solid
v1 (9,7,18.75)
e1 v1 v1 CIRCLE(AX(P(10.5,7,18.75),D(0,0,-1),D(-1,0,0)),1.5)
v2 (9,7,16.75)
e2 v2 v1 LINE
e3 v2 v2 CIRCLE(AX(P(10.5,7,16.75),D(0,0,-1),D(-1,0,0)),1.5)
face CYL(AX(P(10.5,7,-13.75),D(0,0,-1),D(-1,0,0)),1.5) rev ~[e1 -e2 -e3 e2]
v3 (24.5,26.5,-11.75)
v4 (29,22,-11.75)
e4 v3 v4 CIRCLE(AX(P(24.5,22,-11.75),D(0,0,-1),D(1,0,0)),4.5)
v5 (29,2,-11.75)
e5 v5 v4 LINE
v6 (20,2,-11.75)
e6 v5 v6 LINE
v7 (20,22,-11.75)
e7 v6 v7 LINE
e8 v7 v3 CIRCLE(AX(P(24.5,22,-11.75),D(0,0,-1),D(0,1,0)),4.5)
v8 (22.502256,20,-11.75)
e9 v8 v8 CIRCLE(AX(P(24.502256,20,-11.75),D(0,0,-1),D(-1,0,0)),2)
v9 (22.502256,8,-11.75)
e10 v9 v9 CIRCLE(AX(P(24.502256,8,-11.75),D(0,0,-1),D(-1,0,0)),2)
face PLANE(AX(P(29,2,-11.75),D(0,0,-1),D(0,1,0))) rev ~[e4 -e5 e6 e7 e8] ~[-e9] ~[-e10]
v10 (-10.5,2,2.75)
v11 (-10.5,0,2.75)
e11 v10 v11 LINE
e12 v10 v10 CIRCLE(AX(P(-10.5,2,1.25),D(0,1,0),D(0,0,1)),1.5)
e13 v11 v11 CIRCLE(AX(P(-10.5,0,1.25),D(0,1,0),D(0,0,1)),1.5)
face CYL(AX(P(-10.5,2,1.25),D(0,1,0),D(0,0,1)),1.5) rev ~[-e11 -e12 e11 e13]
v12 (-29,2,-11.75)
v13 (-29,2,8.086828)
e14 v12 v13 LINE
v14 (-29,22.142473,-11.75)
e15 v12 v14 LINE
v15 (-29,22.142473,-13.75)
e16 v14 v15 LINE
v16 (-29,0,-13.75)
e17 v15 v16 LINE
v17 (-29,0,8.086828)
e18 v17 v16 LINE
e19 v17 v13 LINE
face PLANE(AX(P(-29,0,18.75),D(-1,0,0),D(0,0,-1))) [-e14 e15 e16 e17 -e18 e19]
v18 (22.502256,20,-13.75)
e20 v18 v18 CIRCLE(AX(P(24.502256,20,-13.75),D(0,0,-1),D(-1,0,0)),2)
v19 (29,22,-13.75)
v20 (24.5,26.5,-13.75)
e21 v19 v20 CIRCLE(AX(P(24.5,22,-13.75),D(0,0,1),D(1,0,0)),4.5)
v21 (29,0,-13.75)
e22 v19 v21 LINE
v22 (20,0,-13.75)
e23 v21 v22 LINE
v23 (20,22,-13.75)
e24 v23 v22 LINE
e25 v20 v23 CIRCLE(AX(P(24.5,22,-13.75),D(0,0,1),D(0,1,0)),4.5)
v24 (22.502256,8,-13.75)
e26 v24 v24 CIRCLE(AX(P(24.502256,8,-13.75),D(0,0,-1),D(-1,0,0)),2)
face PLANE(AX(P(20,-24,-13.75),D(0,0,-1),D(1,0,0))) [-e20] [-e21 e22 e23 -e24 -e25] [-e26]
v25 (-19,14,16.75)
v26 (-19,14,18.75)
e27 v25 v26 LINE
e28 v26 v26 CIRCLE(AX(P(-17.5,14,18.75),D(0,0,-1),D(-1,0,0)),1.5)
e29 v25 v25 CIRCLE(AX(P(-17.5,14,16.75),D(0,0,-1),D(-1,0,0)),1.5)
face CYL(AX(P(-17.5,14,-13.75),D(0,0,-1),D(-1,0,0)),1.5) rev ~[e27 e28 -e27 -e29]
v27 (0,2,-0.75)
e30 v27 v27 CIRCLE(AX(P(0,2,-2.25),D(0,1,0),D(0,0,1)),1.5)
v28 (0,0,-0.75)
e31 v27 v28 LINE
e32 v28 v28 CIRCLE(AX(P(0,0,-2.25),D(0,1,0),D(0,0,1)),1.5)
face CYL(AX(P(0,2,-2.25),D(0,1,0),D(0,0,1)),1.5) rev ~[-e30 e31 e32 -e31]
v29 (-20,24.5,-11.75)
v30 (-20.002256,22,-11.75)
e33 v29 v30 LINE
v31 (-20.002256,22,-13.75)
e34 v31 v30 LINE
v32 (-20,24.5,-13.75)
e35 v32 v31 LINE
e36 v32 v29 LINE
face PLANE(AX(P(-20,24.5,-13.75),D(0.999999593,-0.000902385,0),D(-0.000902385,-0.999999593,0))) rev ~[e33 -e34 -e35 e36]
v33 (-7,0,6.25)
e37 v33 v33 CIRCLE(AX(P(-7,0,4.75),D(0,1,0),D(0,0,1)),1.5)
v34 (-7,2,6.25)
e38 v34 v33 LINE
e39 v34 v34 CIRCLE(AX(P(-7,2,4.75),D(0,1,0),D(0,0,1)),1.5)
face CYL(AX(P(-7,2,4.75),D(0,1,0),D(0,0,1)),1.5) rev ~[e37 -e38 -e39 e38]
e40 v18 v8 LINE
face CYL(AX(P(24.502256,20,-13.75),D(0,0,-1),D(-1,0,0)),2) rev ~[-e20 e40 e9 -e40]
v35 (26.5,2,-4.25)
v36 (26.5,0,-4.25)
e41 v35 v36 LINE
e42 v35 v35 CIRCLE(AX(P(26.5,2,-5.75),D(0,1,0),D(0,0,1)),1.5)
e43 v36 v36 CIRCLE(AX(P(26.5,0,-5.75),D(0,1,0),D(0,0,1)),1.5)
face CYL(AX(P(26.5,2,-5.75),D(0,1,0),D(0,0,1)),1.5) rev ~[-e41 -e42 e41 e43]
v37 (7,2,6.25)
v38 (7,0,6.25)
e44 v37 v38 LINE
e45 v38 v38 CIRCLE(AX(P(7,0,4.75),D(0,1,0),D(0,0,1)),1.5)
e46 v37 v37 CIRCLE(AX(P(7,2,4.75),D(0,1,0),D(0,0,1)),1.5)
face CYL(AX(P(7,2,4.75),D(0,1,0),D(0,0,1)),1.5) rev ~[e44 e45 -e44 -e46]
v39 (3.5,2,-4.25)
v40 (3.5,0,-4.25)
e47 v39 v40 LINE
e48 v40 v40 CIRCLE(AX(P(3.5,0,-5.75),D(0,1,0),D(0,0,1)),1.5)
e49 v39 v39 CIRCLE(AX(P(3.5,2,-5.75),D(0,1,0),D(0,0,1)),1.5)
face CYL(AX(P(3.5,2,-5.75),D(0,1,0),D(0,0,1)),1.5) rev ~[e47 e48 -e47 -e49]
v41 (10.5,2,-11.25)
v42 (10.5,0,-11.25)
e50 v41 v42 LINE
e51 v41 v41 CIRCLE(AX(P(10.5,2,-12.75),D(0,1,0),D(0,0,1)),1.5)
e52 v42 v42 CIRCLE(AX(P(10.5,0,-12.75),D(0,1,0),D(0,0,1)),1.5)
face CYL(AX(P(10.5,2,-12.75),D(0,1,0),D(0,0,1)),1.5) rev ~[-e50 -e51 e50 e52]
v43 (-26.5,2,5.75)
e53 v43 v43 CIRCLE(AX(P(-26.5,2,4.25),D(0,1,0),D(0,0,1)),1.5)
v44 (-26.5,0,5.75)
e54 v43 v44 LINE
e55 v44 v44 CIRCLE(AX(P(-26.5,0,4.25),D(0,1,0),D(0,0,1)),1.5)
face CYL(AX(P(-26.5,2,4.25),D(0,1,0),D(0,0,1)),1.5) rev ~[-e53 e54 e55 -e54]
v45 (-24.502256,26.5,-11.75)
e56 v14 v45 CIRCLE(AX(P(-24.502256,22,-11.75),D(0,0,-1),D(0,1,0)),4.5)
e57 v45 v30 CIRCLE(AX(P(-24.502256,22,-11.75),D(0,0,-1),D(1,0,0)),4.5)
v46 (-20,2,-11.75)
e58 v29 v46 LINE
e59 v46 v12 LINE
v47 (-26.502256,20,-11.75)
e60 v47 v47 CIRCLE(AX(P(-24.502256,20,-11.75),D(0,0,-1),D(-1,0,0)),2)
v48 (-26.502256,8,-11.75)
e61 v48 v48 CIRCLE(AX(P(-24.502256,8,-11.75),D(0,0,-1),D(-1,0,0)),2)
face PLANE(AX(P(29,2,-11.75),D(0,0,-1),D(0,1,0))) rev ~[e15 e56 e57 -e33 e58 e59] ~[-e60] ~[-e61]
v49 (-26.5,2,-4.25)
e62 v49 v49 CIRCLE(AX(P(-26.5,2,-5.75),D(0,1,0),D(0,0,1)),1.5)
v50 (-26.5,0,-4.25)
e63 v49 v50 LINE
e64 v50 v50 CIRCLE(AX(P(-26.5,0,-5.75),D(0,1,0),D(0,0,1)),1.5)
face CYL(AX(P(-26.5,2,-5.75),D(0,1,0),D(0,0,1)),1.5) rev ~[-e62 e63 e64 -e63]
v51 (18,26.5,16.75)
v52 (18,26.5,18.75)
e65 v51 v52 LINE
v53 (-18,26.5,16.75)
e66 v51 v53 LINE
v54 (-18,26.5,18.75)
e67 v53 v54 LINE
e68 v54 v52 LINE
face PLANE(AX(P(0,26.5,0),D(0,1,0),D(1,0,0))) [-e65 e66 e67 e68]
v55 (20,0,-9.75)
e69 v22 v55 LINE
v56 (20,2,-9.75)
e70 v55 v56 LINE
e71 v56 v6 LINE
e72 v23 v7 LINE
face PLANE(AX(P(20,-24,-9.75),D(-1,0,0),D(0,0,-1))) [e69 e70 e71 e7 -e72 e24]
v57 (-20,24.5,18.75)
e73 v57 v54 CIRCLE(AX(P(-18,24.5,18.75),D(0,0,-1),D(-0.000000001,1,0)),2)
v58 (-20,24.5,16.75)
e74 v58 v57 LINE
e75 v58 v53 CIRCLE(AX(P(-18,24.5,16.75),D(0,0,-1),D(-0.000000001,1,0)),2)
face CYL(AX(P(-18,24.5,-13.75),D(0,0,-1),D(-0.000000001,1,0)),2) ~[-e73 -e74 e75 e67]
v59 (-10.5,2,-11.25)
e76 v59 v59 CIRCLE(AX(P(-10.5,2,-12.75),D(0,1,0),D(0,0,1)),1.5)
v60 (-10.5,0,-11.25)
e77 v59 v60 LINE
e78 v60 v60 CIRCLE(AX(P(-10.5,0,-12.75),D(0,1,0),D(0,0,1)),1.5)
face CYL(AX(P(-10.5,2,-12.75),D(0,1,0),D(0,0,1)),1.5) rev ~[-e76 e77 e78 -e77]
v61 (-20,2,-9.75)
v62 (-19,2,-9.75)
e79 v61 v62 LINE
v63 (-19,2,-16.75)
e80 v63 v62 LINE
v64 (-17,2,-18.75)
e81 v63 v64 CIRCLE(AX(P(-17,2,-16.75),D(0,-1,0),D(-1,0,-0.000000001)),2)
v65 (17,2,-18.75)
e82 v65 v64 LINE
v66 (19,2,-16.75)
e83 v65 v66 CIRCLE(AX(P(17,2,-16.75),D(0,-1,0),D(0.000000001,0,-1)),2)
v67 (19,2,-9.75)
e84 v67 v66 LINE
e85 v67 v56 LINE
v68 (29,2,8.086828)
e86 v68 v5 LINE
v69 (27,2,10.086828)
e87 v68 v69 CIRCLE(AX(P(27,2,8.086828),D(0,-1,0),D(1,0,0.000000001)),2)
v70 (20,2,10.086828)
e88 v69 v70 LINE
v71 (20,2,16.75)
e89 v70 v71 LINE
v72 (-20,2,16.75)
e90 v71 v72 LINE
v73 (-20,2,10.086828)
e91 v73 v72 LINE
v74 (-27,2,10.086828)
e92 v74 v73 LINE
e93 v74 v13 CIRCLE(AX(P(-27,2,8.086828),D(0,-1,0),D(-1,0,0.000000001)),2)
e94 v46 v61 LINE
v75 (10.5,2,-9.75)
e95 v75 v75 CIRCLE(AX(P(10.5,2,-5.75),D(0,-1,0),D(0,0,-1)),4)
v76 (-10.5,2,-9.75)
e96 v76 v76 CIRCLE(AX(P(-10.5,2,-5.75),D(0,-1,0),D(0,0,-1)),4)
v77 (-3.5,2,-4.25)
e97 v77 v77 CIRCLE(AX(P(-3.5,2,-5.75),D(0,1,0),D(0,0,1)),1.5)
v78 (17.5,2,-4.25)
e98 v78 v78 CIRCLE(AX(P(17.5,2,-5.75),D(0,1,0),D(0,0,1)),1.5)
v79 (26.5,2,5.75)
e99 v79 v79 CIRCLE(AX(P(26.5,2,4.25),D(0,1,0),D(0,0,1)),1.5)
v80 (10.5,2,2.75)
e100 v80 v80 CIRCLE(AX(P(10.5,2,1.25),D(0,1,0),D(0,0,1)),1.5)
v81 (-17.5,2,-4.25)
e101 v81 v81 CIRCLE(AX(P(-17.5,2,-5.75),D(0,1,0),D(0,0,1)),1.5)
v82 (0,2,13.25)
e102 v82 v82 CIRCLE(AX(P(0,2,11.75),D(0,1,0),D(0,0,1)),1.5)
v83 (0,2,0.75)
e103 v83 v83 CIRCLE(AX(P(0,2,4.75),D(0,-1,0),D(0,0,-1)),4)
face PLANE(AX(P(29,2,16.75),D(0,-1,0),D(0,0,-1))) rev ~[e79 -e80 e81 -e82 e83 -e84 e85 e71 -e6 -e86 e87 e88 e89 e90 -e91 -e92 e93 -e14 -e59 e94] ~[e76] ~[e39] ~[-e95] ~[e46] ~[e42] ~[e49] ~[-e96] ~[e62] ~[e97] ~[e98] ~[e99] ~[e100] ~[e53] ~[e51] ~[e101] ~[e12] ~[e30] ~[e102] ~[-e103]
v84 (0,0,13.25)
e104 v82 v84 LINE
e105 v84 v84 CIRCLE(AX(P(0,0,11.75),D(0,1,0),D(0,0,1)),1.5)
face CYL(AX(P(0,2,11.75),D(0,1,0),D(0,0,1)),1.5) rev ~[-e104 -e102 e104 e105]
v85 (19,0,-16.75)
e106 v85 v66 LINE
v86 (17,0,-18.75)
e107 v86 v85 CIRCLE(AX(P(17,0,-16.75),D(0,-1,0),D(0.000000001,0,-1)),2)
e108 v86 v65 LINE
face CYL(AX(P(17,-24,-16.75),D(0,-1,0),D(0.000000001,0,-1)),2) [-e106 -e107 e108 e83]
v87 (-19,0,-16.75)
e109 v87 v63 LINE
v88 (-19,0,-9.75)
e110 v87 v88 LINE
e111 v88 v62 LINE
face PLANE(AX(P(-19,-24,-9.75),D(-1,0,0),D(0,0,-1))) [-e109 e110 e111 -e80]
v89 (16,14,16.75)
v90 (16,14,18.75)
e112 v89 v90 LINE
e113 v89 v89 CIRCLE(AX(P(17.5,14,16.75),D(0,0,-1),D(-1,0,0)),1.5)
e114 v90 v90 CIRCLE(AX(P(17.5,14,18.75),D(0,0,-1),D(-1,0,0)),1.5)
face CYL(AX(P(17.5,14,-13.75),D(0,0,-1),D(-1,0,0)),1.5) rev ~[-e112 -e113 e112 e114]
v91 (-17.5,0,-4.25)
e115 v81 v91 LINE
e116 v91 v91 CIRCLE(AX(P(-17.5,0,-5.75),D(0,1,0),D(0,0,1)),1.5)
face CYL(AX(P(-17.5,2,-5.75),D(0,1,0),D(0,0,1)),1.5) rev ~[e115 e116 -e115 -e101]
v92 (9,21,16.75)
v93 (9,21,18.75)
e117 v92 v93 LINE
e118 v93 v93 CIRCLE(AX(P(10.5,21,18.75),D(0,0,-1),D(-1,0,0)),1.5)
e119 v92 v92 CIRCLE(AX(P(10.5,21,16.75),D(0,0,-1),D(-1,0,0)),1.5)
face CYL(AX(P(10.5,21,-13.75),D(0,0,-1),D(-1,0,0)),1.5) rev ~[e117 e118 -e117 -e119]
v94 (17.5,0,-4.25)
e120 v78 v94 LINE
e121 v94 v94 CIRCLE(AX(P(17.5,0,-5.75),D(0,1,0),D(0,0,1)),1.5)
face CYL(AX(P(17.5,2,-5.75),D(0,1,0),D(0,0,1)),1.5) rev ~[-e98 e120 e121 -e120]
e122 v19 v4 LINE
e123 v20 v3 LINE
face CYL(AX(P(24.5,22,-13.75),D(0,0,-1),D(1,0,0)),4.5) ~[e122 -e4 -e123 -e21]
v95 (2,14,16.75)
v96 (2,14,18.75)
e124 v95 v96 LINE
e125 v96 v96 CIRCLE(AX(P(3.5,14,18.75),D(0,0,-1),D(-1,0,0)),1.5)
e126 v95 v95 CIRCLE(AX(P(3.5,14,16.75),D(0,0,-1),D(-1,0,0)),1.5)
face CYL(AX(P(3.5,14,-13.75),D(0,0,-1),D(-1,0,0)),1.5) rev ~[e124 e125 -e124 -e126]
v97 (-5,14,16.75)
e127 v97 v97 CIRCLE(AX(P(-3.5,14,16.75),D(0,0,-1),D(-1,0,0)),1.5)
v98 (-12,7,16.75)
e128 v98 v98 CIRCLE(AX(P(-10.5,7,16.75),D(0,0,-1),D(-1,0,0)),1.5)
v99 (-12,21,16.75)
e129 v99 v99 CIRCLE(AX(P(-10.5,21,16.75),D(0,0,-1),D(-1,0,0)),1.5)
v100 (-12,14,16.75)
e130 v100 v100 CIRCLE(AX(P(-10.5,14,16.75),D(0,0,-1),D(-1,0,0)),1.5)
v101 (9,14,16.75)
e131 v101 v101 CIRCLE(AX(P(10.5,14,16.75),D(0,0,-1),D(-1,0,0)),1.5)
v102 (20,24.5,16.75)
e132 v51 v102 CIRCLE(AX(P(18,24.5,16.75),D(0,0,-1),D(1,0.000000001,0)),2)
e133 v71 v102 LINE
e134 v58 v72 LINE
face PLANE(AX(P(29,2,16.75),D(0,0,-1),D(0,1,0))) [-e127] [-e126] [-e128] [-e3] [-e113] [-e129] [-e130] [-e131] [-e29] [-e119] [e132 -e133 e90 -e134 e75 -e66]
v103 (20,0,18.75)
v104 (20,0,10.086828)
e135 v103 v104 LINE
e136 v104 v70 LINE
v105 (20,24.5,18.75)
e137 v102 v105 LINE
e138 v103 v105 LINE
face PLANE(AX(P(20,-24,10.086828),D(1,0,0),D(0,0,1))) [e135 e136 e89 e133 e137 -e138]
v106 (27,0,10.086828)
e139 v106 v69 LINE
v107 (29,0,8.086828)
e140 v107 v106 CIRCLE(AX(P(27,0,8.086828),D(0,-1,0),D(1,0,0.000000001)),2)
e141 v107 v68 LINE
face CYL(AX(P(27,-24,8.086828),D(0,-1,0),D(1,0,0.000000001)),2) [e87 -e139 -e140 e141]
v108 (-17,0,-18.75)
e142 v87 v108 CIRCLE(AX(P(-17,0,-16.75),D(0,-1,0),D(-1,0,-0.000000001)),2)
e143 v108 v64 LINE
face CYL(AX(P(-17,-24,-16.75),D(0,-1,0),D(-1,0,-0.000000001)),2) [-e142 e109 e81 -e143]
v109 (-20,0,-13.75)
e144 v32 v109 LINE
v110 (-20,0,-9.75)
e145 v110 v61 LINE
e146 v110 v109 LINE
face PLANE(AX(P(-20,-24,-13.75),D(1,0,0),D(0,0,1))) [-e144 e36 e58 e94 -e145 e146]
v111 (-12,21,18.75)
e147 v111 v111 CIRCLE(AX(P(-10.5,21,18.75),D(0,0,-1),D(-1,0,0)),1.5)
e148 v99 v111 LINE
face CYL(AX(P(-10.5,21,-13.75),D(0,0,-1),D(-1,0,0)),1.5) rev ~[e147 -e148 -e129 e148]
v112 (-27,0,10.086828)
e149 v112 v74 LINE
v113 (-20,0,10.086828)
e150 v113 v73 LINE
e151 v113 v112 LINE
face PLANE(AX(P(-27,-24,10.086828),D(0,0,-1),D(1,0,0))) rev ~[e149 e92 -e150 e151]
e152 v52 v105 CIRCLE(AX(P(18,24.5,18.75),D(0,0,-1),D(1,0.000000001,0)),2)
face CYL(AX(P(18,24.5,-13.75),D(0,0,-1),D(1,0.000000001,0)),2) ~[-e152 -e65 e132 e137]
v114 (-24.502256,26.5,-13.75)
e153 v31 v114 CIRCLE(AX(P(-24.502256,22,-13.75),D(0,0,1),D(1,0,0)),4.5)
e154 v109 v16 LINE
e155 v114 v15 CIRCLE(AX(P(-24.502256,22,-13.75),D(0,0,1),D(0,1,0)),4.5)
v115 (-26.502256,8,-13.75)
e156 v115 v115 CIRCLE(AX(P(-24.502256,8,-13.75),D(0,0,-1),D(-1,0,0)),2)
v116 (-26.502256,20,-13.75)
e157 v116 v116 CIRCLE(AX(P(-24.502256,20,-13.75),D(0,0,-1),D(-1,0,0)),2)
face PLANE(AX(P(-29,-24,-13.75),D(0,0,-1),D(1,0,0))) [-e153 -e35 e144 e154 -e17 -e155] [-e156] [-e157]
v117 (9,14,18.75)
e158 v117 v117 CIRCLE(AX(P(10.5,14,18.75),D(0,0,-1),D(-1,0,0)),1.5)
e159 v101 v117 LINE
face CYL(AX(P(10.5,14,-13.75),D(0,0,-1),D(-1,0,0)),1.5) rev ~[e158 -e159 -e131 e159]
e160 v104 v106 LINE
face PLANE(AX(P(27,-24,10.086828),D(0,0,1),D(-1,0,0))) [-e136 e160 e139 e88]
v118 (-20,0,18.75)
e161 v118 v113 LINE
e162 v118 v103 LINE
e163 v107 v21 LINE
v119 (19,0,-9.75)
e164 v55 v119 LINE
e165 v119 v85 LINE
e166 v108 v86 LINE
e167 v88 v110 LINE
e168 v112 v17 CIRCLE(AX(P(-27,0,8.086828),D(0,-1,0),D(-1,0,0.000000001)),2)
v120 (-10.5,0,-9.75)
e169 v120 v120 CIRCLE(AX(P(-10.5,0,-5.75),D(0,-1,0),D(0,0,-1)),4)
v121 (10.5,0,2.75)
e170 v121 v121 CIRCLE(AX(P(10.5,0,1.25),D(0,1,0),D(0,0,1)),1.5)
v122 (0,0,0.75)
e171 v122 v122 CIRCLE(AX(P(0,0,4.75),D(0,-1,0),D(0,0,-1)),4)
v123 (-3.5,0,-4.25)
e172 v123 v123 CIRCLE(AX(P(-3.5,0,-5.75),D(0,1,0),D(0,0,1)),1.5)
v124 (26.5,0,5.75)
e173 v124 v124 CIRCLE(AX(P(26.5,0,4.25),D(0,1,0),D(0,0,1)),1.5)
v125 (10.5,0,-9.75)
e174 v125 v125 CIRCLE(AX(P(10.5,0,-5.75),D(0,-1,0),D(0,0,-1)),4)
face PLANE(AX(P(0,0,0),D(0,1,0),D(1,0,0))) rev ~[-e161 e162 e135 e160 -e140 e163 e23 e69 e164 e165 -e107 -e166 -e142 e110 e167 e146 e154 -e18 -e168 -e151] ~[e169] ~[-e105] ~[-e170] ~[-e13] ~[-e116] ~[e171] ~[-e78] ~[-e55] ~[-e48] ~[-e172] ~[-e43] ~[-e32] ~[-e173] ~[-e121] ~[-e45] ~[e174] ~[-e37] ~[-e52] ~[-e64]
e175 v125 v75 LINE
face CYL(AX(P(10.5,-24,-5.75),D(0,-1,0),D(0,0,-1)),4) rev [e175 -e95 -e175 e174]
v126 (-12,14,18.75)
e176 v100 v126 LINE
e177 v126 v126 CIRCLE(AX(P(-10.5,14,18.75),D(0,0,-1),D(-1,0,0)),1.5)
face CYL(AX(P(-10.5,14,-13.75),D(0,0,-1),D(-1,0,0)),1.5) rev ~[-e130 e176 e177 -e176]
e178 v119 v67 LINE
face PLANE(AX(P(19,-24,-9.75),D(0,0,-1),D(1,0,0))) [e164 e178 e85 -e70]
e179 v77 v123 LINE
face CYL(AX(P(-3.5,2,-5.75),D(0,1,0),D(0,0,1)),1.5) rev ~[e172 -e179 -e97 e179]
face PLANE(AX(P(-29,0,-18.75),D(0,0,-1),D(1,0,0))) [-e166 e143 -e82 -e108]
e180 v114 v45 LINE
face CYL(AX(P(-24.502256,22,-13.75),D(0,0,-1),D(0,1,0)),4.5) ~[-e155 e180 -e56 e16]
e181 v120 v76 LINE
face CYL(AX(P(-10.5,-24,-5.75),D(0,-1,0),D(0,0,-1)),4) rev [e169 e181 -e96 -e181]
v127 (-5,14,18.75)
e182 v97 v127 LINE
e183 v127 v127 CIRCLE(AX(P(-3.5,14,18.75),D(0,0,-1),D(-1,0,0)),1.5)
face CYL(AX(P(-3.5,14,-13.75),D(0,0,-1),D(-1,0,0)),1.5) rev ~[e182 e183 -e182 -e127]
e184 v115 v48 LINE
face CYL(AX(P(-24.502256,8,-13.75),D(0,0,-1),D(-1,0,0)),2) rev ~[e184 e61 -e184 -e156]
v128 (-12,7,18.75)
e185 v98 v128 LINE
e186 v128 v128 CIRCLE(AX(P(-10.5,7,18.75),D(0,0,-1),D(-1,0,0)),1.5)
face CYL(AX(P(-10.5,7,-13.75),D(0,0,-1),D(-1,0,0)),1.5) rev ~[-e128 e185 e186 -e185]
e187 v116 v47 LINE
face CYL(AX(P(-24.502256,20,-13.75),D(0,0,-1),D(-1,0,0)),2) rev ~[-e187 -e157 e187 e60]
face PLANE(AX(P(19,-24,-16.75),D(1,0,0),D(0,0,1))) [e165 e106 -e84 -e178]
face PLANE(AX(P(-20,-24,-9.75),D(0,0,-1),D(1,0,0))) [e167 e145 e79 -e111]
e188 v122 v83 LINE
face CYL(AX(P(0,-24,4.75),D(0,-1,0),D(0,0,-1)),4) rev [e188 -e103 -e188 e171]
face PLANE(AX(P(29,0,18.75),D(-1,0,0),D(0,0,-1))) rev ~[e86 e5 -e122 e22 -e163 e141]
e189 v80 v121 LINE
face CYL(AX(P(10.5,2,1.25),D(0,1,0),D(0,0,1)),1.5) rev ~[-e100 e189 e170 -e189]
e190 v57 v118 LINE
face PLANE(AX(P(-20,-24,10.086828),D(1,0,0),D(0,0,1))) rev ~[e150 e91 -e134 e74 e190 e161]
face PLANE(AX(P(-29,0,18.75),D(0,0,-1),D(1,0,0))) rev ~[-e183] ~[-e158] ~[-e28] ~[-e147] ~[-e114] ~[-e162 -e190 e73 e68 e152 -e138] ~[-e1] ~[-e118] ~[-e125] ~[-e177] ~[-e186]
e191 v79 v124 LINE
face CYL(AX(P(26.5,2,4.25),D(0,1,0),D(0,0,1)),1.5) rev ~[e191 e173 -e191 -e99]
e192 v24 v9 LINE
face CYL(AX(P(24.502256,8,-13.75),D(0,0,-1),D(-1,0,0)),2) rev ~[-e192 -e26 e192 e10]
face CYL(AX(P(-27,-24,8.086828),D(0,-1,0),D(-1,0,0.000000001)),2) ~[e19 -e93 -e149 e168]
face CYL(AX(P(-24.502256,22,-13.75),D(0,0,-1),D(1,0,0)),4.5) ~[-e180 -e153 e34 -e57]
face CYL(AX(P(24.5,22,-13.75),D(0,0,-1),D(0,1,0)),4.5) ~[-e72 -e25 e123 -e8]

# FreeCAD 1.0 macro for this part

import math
import FreeCAD as App
import Part
import Sketcher

V = App.Vector

doc = App.newDocument("Part")
params = doc.addObject("Spreadsheet::Sheet", "Params")
for row, (alias, value) in enumerate([
    ("sketch1_width", "58 mm"),
    ("sketch1_height", "37.5 mm"),
    ("pad1_length", "26.5 mm"),
    ("sketch2_width", "24.5 mm"),
    ("sketch2_height", "28.5 mm"),
    ("sketch3_diameter", "8 mm"),
    ("sketch3_radius", "2 mm"),
    ("sketch3_width", "9 mm"),
    ("sketch3_width2", "1 mm"),
    ("sketch3_height", "5 mm"),
    ("sketch4_width", "38 mm"),
    ("sketch4_height", "24.5 mm"),
    ("pocket3_length", "26 mm"),
    ("sketch5_diameter", "3 mm"),
    ("sketch6_diameter", "4 mm"),
    ("sketch6_diameter2", "3 mm"),
    ("sketch6_radius", "4.5 mm"),
], start=1):
    params.set(f"A{row}", alias)
    params.set(f"B{row}", "=" + value)
    params.setAlias(f"B{row}", alias)

body = doc.addObject("PartDesign::Body", "Body")

sketch1 = body.newObject("Sketcher::SketchObject", "Sketch")
sketch1.AttachmentSupport = (doc.getObject("XZ_Plane"), [""])
sketch1.MapMode = "FlatFace"
sketch1.addGeometry([
    Part.LineSegment(V(-29, -19, 0), V(-29, 19, 0)),
    Part.LineSegment(V(-29, 19, 0), V(29, 19, 0)),
    Part.LineSegment(V(29, 19, 0), V(29, -19, 0)),
    Part.LineSegment(V(29, -19, 0), V(-29, -19, 0)),
], False)
sketch1.addConstraint([
    Sketcher.Constraint("Coincident", 0, 2, 1, 1),
    Sketcher.Constraint("Coincident", 1, 2, 2, 1),
    Sketcher.Constraint("Coincident", 2, 2, 3, 1),
    Sketcher.Constraint("Coincident", 3, 2, 0, 1),
    Sketcher.Constraint("Vertical", 0),
    Sketcher.Constraint("Horizontal", 1),
    Sketcher.Constraint("Vertical", 2),
    Sketcher.Constraint("Horizontal", 3),
    Sketcher.Constraint("Symmetric", 0, 2, 2, 2, -1, 1),
    Sketcher.Constraint("DistanceX", 1, 1, 1, 2, 58.0),
    Sketcher.Constraint("DistanceY", 0, 1, 0, 2, 37.5),
])
sketch1.setExpression("Constraints[9]", "Params.sketch1_width")
sketch1.setExpression("Constraints[10]", "Params.sketch1_height")
pad1 = body.newObject("PartDesign::Pad", "Pad")
pad1.Profile = sketch1
pad1.setExpression("Length", "Params.pad1_length")
pad1.Reversed = True

sketch2 = body.newObject("Sketcher::SketchObject", "Sketch001")
sketch2.AttachmentSupport = (doc.getObject("YZ_Plane"), [""])
sketch2.MapMode = "FlatFace"
sketch2.AttachmentOffset = App.Placement(V(0, 0, 29), App.Rotation())
sketch2.addGeometry([
    Part.LineSegment(V(26, -14, 0), V(2, -14, 0)),
    Part.LineSegment(V(2, -14, 0), V(2, -22, 0)),
    Part.LineSegment(V(2, -22, 0), V(26, -22, 0)),
    Part.LineSegment(V(26, -22, 0), V(26, -14, 0)),
    Part.LineSegment(V(27, 17, 0), V(2, 17, 0)),
    Part.LineSegment(V(2, 17, 0), V(2, -12, 0)),
    Part.LineSegment(V(2, -12, 0), V(27, -12, 0)),
    Part.LineSegment(V(27, -12, 0), V(27, 17, 0)),
], False)
sketch2.addConstraint([
    Sketcher.Constraint("Coincident", 0, 2, 1, 1),
    Sketcher.Constraint("Coincident", 1, 2, 2, 1),
    Sketcher.Constraint("Coincident", 2, 2, 3, 1),
    Sketcher.Constraint("Coincident", 3, 2, 0, 1),
    Sketcher.Constraint("Coincident", 4, 2, 5, 1),
    Sketcher.Constraint("Coincident", 5, 2, 6, 1),
    Sketcher.Constraint("Coincident", 6, 2, 7, 1),
    Sketcher.Constraint("Coincident", 7, 2, 4, 1),
    Sketcher.Constraint("Horizontal", 0),
    Sketcher.Constraint("Vertical", 1),
    Sketcher.Constraint("Horizontal", 2),
    Sketcher.Constraint("Vertical", 3),
    Sketcher.Constraint("Horizontal", 4),
    Sketcher.Constraint("Vertical", 5),
    Sketcher.Constraint("Horizontal", 6),
    Sketcher.Constraint("Vertical", 7),
    Sketcher.Constraint("Vertical", 1, 2, 4, 2),
    Sketcher.Constraint("DistanceX", 0, 2, 0, 1, 24.5),
    Sketcher.Constraint("DistanceY", 5, 2, 5, 1, 28.5),
    Sketcher.Constraint("DistanceX", -1, 1, 0, 2, 2.0),
    Sketcher.Constraint("DistanceY", 0, 2, 5, 2, 2.0),
    Sketcher.Constraint("DistanceY", 0, 2, -1, 1, 13.75),
    Sketcher.Constraint("DistanceX", 4, 2, 4, 1, 25.319581),
    Sketcher.Constraint("DistanceY", 1, 2, 1, 1, 8.53894),
])
sketch2.setExpression("Constraints[17]", "Params.sketch2_width")
sketch2.setExpression("Constraints[18]", "Params.sketch2_height")
pocket1 = body.newObject("PartDesign::Pocket", "Pocket")
pocket1.Profile = sketch2
pocket1.Type = "ThroughAll"

sketch3 = body.newObject("Sketcher::SketchObject", "Sketch002")
sketch3.AttachmentSupport = (doc.getObject("XZ_Plane"), [""])
sketch3.MapMode = "FlatFace"
sketch3.AttachmentOffset = App.Placement(V(0, 0, -2), App.Rotation())
sketch3.addGeometry([
    Part.LineSegment(V(-29, -18.8, 0), V(-29, -13.8, 0)),
    Part.LineSegment(V(-29, -13.8, 0), V(-20, -13.8, 0)),
    Part.LineSegment(V(-20, -13.8, 0), V(-20, -9.8, 0)),
    Part.LineSegment(V(-20, -9.8, 0), V(-19, -9.8, 0)),
    Part.LineSegment(V(-19, -9.8, 0), V(-19, -16.8, 0)),
    Part.ArcOfCircle(Part.Circle(V(-17, -16.7, 0), V(0, 0, 1), 2), math.radians(-180), math.radians(-90)),
    Part.LineSegment(V(-17, -18.8, 0), V(-29, -18.8, 0)),
    Part.LineSegment(V(29, -18.8, 0), V(17, -18.8, 0)),
    Part.ArcOfCircle(Part.Circle(V(17, -16.7, 0), V(0, 0, 1), 2), math.radians(-90), math.radians(0)),
    Part.LineSegment(V(19, -16.8, 0), V(19, -9.8, 0)),
    Part.LineSegment(V(19, -9.8, 0), V(20, -9.8, 0)),
    Part.LineSegment(V(20, -9.8, 0), V(20, -13.8, 0)),
    Part.LineSegment(V(20, -13.8, 0), V(29, -13.8, 0)),
    Part.LineSegment(V(29, -13.8, 0), V(29, -18.8, 0)),
    Part.LineSegment(V(20, 21.5, 0), V(29, 21.5, 0)),
    Part.LineSegment(V(29, 21.5, 0), V(29, 8.1, 0)),
    Part.ArcOfCircle(Part.Circle(V(27, 8.1, 0), V(0, 0, 1), 2), math.radians(0), math.radians(90)),
    Part.LineSegment(V(27, 10.1, 0), V(20, 10.1, 0)),
    Part.LineSegment(V(20, 10.1, 0), V(20, 21.5, 0)),
    Part.LineSegment(V(-29, 21.5, 0), V(-20, 21.5, 0)),
    Part.LineSegment(V(-20, 21.5, 0), V(-20, 10.1, 0)),
    Part.LineSegment(V(-20, 10.1, 0), V(-27, 10.1, 0)),
    Part.ArcOfCircle(Part.Circle(V(-27, 8.1, 0), V(0, 0, 1), 2), math.radians(90), math.radians(180)),
    Part.LineSegment(V(-29, 8.1, 0), V(-29, 21.5, 0)),
    Part.Circle(V(-10.5, -5.8, 0), V(0, 0, 1), 4),
    Part.Circle(V(0, 4.8, 0), V(0, 0, 1), 4),
    Part.Circle(V(10.5, -5.8, 0), V(0, 0, 1), 4),
], False)
sketch3.addConstraint([
    Sketcher.Constraint("Coincident", 0, 2, 1, 1),
    Sketcher.Constraint("Coincident", 1, 2, 2, 1),
    Sketcher.Constraint("Coincident", 2, 2, 3, 1),
    Sketcher.Constraint("Coincident", 3, 2, 4, 1),
    Sketcher.Constraint("Tangent", 4, 2, 5, 1),
    Sketcher.Constraint("Tangent", 5, 2, 6, 1),
    Sketcher.Constraint("Coincident", 6, 2, 0, 1),
    Sketcher.Constraint("Tangent", 7, 2, 8, 1),
    Sketcher.Constraint("Tangent", 8, 2, 9, 1),
    Sketcher.Constraint("Coincident", 9, 2, 10, 1),
    Sketcher.Constraint("Coincident", 10, 2, 11, 1),
    Sketcher.Constraint("Coincident", 11, 2, 12, 1),
    Sketcher.Constraint("Coincident", 12, 2, 13, 1),
    Sketcher.Constraint("Coincident", 13, 2, 7, 1),
    Sketcher.Constraint("Coincident", 14, 2, 15, 1),
    Sketcher.Constraint("Tangent", 15, 2, 16, 1),
    Sketcher.Constraint("Tangent", 16, 2, 17, 1),
    Sketcher.Constraint("Coincident", 17, 2, 18, 1),
    Sketcher.Constraint("Coincident", 18, 2, 14, 1),
    Sketcher.Constraint("Coincident", 19, 2, 20, 1),
    Sketcher.Constraint("Coincident", 20, 2, 21, 1),
    Sketcher.Constraint("Tangent", 21, 2, 22, 1),
    Sketcher.Constraint("Tangent", 22, 2, 23, 1),
    Sketcher.Constraint("Coincident", 23, 2, 19, 1),
    Sketcher.Constraint("Vertical", 0),
    Sketcher.Constraint("Horizontal", 1),
    Sketcher.Constraint("Vertical", 2),
    Sketcher.Constraint("Horizontal", 3),
    Sketcher.Constraint("Vertical", 4),
    Sketcher.Constraint("Horizontal", 6),
    Sketcher.Constraint("Horizontal", 7),
    Sketcher.Constraint("Vertical", 9),
    Sketcher.Constraint("Horizontal", 10),
    Sketcher.Constraint("Vertical", 11),
    Sketcher.Constraint("Horizontal", 12),
    Sketcher.Constraint("Vertical", 13),
    Sketcher.Constraint("Horizontal", 14),
    Sketcher.Constraint("Vertical", 15),
    Sketcher.Constraint("Horizontal", 17),
    Sketcher.Constraint("Vertical", 18),
    Sketcher.Constraint("Horizontal", 19),
    Sketcher.Constraint("Vertical", 20),
    Sketcher.Constraint("Horizontal", 21),
    Sketcher.Constraint("Vertical", 23),
    Sketcher.Constraint("Equal", 5, 8),
    Sketcher.Constraint("Equal", 8, 16),
    Sketcher.Constraint("Equal", 16, 22),
    Sketcher.Constraint("Equal", 24, 25),
    Sketcher.Constraint("Equal", 25, 26),
    Sketcher.Constraint("Symmetric", 5, 3, 8, 3, -2),
    Sketcher.Constraint("Symmetric", 16, 3, 22, 3, -2),
    Sketcher.Constraint("Symmetric", 24, 3, 26, 3, -2),
    Sketcher.Constraint("Symmetric", 2, 2, 10, 2, -2),
    Sketcher.Constraint("Symmetric", 0, 2, 12, 2, -2),
    Sketcher.Constraint("Symmetric", 18, 2, 19, 2, -2),
    Sketcher.Constraint("PointOnObject", 25, 3, -2),
    Sketcher.Constraint("Vertical", 13, 2, 14, 2),
    Sketcher.Constraint("Vertical", 11, 2, 17, 2),
    Sketcher.Constraint("Equal", 21, 4),
    Sketcher.Constraint("Diameter", 24, 8.0),
    Sketcher.Constraint("Radius", 5, 2.0),
    Sketcher.Constraint("DistanceX", 1, 1, 1, 2, 9.0),
    Sketcher.Constraint("DistanceX", 3, 1, 3, 2, 1.0),
    Sketcher.Constraint("DistanceY", 0, 1, 0, 2, 5.0),
    Sketcher.Constraint("DistanceX", 5, 3, -1, 1, 17.0),
    Sketcher.Constraint("DistanceY", 5, 3, 24, 3, 11.0),
    Sketcher.Constraint("DistanceX", 24, 3, 26, 3, 21.0),
    Sketcher.Constraint("DistanceY", 24, 3, 25, 3, 10.5),
    Sketcher.Constraint("DistanceY", 5, 3, -1, 1, 16.75),
    Sketcher.Constraint("DistanceY", 15, 2, 15, 1, 13.405601),
    Sketcher.Constraint("DistanceY", -1, 1, 16, 3, 8.086828),
])
sketch3.setExpression("Constraints[59]", "Params.sketch3_diameter")
sketch3.setExpression("Constraints[60]", "Params.sketch3_radius")
sketch3.setExpression("Constraints[61]", "Params.sketch3_width")
sketch3.setExpression("Constraints[62]", "Params.sketch3_width2")
sketch3.setExpression("Constraints[63]", "Params.sketch3_height")
pocket2 = body.newObject("PartDesign::Pocket", "Pocket001")
pocket2.Profile = sketch3
pocket2.Type = "ThroughAll"
pocket2.Midplane = True

sketch4 = body.newObject("Sketcher::SketchObject", "Sketch003")
sketch4.AttachmentSupport = (doc.getObject("XY_Plane"), [""])
sketch4.MapMode = "FlatFace"
sketch4.AttachmentOffset = App.Placement(V(0, 0, -13.75), App.Rotation())
sketch4.addGeometry([
    Part.LineSegment(V(19, 26, 0), V(19, 2, 0)),
    Part.LineSegment(V(19, 2, 0), V(-19, 2, 0)),
    Part.LineSegment(V(-19, 2, 0), V(-19, 26, 0)),
    Part.LineSegment(V(-19, 26, 0), V(19, 26, 0)),
], False)
sketch4.addConstraint([
    Sketcher.Constraint("Coincident", 0, 2, 1, 1),
    Sketcher.Constraint("Coincident", 1, 2, 2, 1),
    Sketcher.Constraint("Coincident", 2, 2, 3, 1),
    Sketcher.Constraint("Coincident", 3, 2, 0, 1),
    Sketcher.Constraint("Vertical", 0),
    Sketcher.Constraint("Horizontal", 1),
    Sketcher.Constraint("Vertical", 2),
    Sketcher.Constraint("Horizontal", 3),
    Sketcher.Constraint("DistanceX", 1, 2, 1, 1, 38.0),
    Sketcher.Constraint("DistanceY", 0, 2, 0, 1, 24.5),
    Sketcher.Constraint("DistanceX", -1, 1, 0, 2, 19.0),
    Sketcher.Constraint("DistanceY", -1, 1, 0, 2, 2.0),
])
sketch4.setExpression("Constraints[8]", "Params.sketch4_width")
sketch4.setExpression("Constraints[9]", "Params.sketch4_height")
pocket3 = body.newObject("PartDesign::Pocket", "Pocket002")
pocket3.Profile = sketch4
pocket3.setExpression("Length", "Params.pocket3_length")
pocket3.Reversed = True

sketch5 = body.newObject("Sketcher::SketchObject", "Sketch004")
sketch5.AttachmentSupport = (doc.getObject("XZ_Plane"), [""])
sketch5.MapMode = "FlatFace"
sketch5.AttachmentOffset = App.Placement(V(0, 0, -2), App.Rotation())
sketch5.addGeometry([
    Part.Circle(V(-26.5, -5.8, 0), V(0, 0, 1), 1.5),
    Part.Circle(V(-26.5, 4.2, 0), V(0, 0, 1), 1.5),
    Part.Circle(V(-17.5, -5.8, 0), V(0, 0, 1), 1.5),
    Part.Circle(V(-10.5, -12.8, 0), V(0, 0, 1), 1.5),
    Part.Circle(V(10.5, -12.8, 0), V(0, 0, 1), 1.5),
    Part.Circle(V(-3.5, -5.8, 0), V(0, 0, 1), 1.5),
    Part.Circle(V(0, -2.2, 0), V(0, 0, 1), 1.5),
    Part.Circle(V(3.5, -5.8, 0), V(0, 0, 1), 1.5),
    Part.Circle(V(-10.5, 1.2, 0), V(0, 0, 1), 1.5),
    Part.Circle(V(-7, 4.8, 0), V(0, 0, 1), 1.5),
    Part.Circle(V(0, 11.8, 0), V(0, 0, 1), 1.5),
    Part.Circle(V(7, 4.8, 0), V(0, 0, 1), 1.5),
    Part.Circle(V(10.5, 1.2, 0), V(0, 0, 1), 1.5),
    Part.Circle(V(17.5, -5.8, 0), V(0, 0, 1), 1.5),
    Part.Circle(V(26.5, -5.8, 0), V(0, 0, 1), 1.5),
    Part.Circle(V(26.5, 4.2, 0), V(0, 0, 1), 1.5),
], False)
sketch5.addConstraint([
    Sketcher.Constraint("Equal", 0, 1),
    Sketcher.Constraint("Equal", 1, 2),
    Sketcher.Constraint("Equal", 2, 3),
    Sketcher.Constraint("Equal", 3, 4),
    Sketcher.Constraint("Equal", 4, 5),
    Sketcher.Constraint("Equal", 5, 6),
    Sketcher.Constraint("Equal", 6, 7),
    Sketcher.Constraint("Equal", 7, 8),
    Sketcher.Constraint("Equal", 8, 9),
    Sketcher.Constraint("Equal", 9, 10),
    Sketcher.Constraint("Equal", 10, 11),
    Sketcher.Constraint("Equal", 11, 12),
    Sketcher.Constraint("Equal", 12, 13),
    Sketcher.Constraint("Equal", 13, 14),
    Sketcher.Constraint("Equal", 14, 15),
    Sketcher.Constraint("Symmetric", 3, 3, 4, 3, -2),
    Sketcher.Constraint("Symmetric", 5, 3, 7, 3, -2),
    Sketcher.Constraint("Symmetric", 9, 3, 11, 3, -2),
    Sketcher.Constraint("Symmetric", 8, 3, 12, 3, -2),
    Sketcher.Constraint("Symmetric", 2, 3, 13, 3, -2),
    Sketcher.Constraint("Symmetric", 0, 3, 14, 3, -2),
    Sketcher.Constraint("Symmetric", 1, 3, 15, 3, -2),
    Sketcher.Constraint("PointOnObject", 6, 3, -2),
    Sketcher.Constraint("PointOnObject", 10, 3, -2),
    Sketcher.Constraint("Horizontal", 0, 3, 2, 3),
    Sketcher.Constraint("Horizontal", 2, 3, 5, 3),
    Sketcher.Constraint("Vertical", 0, 3, 1, 3),
    Sketcher.Constraint("Vertical", 3, 3, 8, 3),
    Sketcher.Constraint("Diameter", 0, 3.0),
    Sketcher.Constraint("DistanceX", 9, 3, -1, 1, 7.0),
    Sketcher.Constraint("DistanceY", 0, 3, 1, 3, 10.0),
    Sketcher.Constraint("DistanceX", 0, 3, 2, 3, 9.0),
    Sketcher.Constraint("DistanceX", 2, 3, 3, 3, 7.0),
    Sketcher.Constraint("DistanceY", 3, 3, 2, 3, 7.0),
    Sketcher.Constraint("DistanceX", 3, 3, 4, 3, 21.0),
    Sketcher.Constraint("DistanceX", 3, 3, 5, 3, 7.0),
    Sketcher.Constraint("DistanceY", 2, 3, 8, 3, 7.0),
    Sketcher.Constraint("DistanceY", 6, 3, 9, 3, 7.0),
    Sketcher.Constraint("DistanceY", 9, 3, 10, 3, 7.0),
    Sketcher.Constraint("DistanceY", 5, 3, 6, 3, 3.5),
    Sketcher.Constraint("DistanceY", 0, 3, -1, 1, 5.75),
])
sketch5.setExpression("Constraints[28]", "Params.sketch5_diameter")
pocket4 = body.newObject("PartDesign::Pocket", "Pocket003")
pocket4.Profile = sketch5
pocket4.Type = "ThroughAll"
pocket4.Reversed = True

sketch6 = body.newObject("Sketcher::SketchObject", "Sketch005")
sketch6.AttachmentSupport = (doc.getObject("XY_Plane"), [""])
sketch6.MapMode = "FlatFace"
sketch6.AttachmentOffset = App.Placement(V(0, 0, -13.75), App.Rotation())
sketch6.addGeometry([
    Part.ArcOfCircle(Part.Circle(V(24.5, 22, 0), V(0, 0, 1), 4.5), math.radians(0), math.radians(90)),
    Part.LineSegment(V(24.5, 26.5, 0), V(29, 26.5, 0)),
    Part.LineSegment(V(29, 26.5, 0), V(29, 22, 0)),
    Part.ArcOfCircle(Part.Circle(V(24.5, 22, 0), V(0, 0, 1), 4.5), math.radians(90), math.radians(180)),
    Part.LineSegment(V(20, 22, 0), V(20, 24.5, 0)),
    Part.ArcOfCircle(Part.Circle(V(18, 24.5, 0), V(0, 0, 1), 2), math.radians(0), math.radians(90)),
    Part.LineSegment(V(18, 26.5, 0), V(24.5, 26.5, 0)),
    Part.Circle(V(24.5, 20, 0), V(0, 0, 1), 2),
    Part.Circle(V(24.5, 8, 0), V(0, 0, 1), 2),
    Part.LineSegment(V(-24.5, 26.5, 0), V(-18, 26.5, 0)),
    Part.ArcOfCircle(Part.Circle(V(-18, 24.5, 0), V(0, 0, 1), 2), math.radians(90), math.radians(180)),
    Part.LineSegment(V(-20, 24.5, 0), V(-20, 22, 0)),
    Part.ArcOfCircle(Part.Circle(V(-24.5, 22, 0), V(0, 0, 1), 4.5), math.radians(0), math.radians(90)),
    Part.LineSegment(V(-29, 26.5, 0), V(-24.5, 26.5, 0)),
    Part.ArcOfCircle(Part.Circle(V(-24.5, 22, 0), V(0, 0, 1), 4.5), math.radians(90), math.radians(180)),
    Part.LineSegment(V(-29, 22, 0), V(-29, 26.5, 0)),
    Part.Circle(V(-24.5, 20, 0), V(0, 0, 1), 2),
    Part.Circle(V(-10.5, 21, 0), V(0, 0, 1), 1.5),
    Part.Circle(V(10.5, 7, 0), V(0, 0, 1), 1.5),
    Part.Circle(V(-3.5, 14, 0), V(0, 0, 1), 1.5),
    Part.Circle(V(-10.5, 14, 0), V(0, 0, 1), 1.5),
    Part.Circle(V(-17.5, 14, 0), V(0, 0, 1), 1.5),
    Part.Circle(V(-24.5, 8, 0), V(0, 0, 1), 2),
    Part.Circle(V(-10.5, 7, 0), V(0, 0, 1), 1.5),
    Part.Circle(V(17.5, 14, 0), V(0, 0, 1), 1.5),
    Part.Circle(V(10.5, 14, 0), V(0, 0, 1), 1.5),
    Part.Circle(V(10.5, 21, 0), V(0, 0, 1), 1.5),
    Part.Circle(V(3.5, 14, 0), V(0, 0, 1), 1.5),
], False)
sketch6.addConstraint([
    Sketcher.Constraint("Tangent", 0, 2, 1, 1),
    Sketcher.Constraint("Coincident", 1, 2, 2, 1),
    Sketcher.Constraint("Tangent", 2, 2, 0, 1),
    Sketcher.Constraint("Tangent", 3, 2, 4, 1),
    Sketcher.Constraint("Tangent", 4, 2, 5, 1),
    Sketcher.Constraint("Tangent", 5, 2, 6, 1),
    Sketcher.Constraint("Tangent", 6, 2, 3, 1),
    Sketcher.Constraint("Tangent", 9, 2, 10, 1),
    Sketcher.Constraint("Coincident", 10, 2, 11, 1),
    Sketcher.Constraint("Coincident", 11, 2, 12, 1),
    Sketcher.Constraint("Tangent", 12, 2, 9, 1),
    Sketcher.Constraint("Tangent", 13, 2, 14, 1),
    Sketcher.Constraint("Coincident", 14, 2, 15, 1),
    Sketcher.Constraint("Coincident", 15, 2, 13, 1),
    Sketcher.Constraint("Horizontal", 1),
    Sketcher.Constraint("Vertical", 2),
    Sketcher.Constraint("Vertical", 4),
    Sketcher.Constraint("Horizontal", 6),
    Sketcher.Constraint("Horizontal", 9),
    Sketcher.Constraint("Horizontal", 13),
    Sketcher.Constraint("Coincident", 3, 3, 0, 3),
    Sketcher.Constraint("Coincident", 14, 3, 12, 3),
    Sketcher.Constraint("Equal", 0, 3),
    Sketcher.Constraint("Equal", 5, 7),
    Sketcher.Constraint("Equal", 7, 8),
    Sketcher.Constraint("Equal", 8, 10),
    Sketcher.Constraint("Equal", 3, 12),
    Sketcher.Constraint("Equal", 12, 14),
    Sketcher.Constraint("Equal", 10, 16),
    Sketcher.Constraint("Equal", 17, 18),
    Sketcher.Constraint("Equal", 18, 19),
    Sketcher.Constraint("Equal", 19, 20),
    Sketcher.Constraint("Equal", 20, 21),
    Sketcher.Constraint("Equal", 16, 22),
    Sketcher.Constraint("Equal", 21, 23),
    Sketcher.Constraint("Equal", 23, 24),
    Sketcher.Constraint("Equal", 24, 25),
    Sketcher.Constraint("Equal", 25, 26),
    Sketcher.Constraint("Equal", 26, 27),
    Sketcher.Constraint("Symmetric", 5, 3, 10, 3, -2),
    Sketcher.Constraint("Symmetric", 7, 3, 16, 3, -2),
    Sketcher.Constraint("Symmetric", 8, 3, 22, 3, -2),
    Sketcher.Constraint("Symmetric", 18, 3, 23, 3, -2),
    Sketcher.Constraint("Symmetric", 21, 3, 24, 3, -2),
    Sketcher.Constraint("Symmetric", 20, 3, 25, 3, -2),
    Sketcher.Constraint("Symmetric", 17, 3, 26, 3, -2),
    Sketcher.Constraint("Symmetric", 19, 3, 27, 3, -2),
    Sketcher.Constraint("Horizontal", 19, 3, 20, 3),
    Sketcher.Constraint("Horizontal", 20, 3, 21, 3),
    Sketcher.Constraint("Horizontal", 4, 2, 10, 2),
    Sketcher.Constraint("Horizontal", 3, 2, 11, 2),
    Sketcher.Constraint("Horizontal", 11, 2, 14, 2),
    Sketcher.Constraint("Vertical", 7, 3, 8, 3),
    Sketcher.Constraint("Vertical", 14, 3, 16, 3),
    Sketcher.Constraint("Vertical", 17, 3, 20, 3),
    Sketcher.Constraint("Vertical", 20, 3, 23, 3),
    Sketcher.Constraint("Diameter", 7, 4.0),
    Sketcher.Constraint("Diameter", 17, 3.0),
    Sketcher.Constraint("Radius", 0, 4.5),
    Sketcher.Constraint("DistanceY", -1, 1, 0, 3, 22.0),
    Sketcher.Constraint("DistanceX", -1, 1, 5, 3, 18.0),
    Sketcher.Constraint("DistanceY", -1, 1, 7, 3, 20.0),
    Sketcher.Constraint("DistanceY", -1, 1, 8, 3, 8.0),
    Sketcher.Constraint("DistanceY", -1, 1, 17, 3, 21.0),
    Sketcher.Constraint("DistanceY", -1, 1, 18, 3, 7.0),
    Sketcher.Constraint("DistanceY", -1, 1, 19, 3, 14.0),
    Sketcher.Constraint("DistanceX", 15, 2, -1, 1, 29.0),
    Sketcher.Constraint("DistanceX", 18, 3, 0, 3, 14.0),
    Sketcher.Constraint("DistanceX", 17, 3, 19, 3, 7.0),
    Sketcher.Constraint("DistanceX", 21, 3, 20, 3, 7.0),
    Sketcher.Constraint("DistanceX", 9, 1, 9, 2, 6.502256),
])
sketch6.setExpression("Constraints[56]", "Params.sketch6_diameter")
sketch6.setExpression("Constraints[57]", "Params.sketch6_diameter2")
sketch6.setExpression("Constraints[58]", "Params.sketch6_radius")
pocket5 = body.newObject("PartDesign::Pocket", "Pocket004")
pocket5.Profile = sketch6
pocket5.Type = "ThroughAll"
pocket5.Reversed = True

doc.recompute()
